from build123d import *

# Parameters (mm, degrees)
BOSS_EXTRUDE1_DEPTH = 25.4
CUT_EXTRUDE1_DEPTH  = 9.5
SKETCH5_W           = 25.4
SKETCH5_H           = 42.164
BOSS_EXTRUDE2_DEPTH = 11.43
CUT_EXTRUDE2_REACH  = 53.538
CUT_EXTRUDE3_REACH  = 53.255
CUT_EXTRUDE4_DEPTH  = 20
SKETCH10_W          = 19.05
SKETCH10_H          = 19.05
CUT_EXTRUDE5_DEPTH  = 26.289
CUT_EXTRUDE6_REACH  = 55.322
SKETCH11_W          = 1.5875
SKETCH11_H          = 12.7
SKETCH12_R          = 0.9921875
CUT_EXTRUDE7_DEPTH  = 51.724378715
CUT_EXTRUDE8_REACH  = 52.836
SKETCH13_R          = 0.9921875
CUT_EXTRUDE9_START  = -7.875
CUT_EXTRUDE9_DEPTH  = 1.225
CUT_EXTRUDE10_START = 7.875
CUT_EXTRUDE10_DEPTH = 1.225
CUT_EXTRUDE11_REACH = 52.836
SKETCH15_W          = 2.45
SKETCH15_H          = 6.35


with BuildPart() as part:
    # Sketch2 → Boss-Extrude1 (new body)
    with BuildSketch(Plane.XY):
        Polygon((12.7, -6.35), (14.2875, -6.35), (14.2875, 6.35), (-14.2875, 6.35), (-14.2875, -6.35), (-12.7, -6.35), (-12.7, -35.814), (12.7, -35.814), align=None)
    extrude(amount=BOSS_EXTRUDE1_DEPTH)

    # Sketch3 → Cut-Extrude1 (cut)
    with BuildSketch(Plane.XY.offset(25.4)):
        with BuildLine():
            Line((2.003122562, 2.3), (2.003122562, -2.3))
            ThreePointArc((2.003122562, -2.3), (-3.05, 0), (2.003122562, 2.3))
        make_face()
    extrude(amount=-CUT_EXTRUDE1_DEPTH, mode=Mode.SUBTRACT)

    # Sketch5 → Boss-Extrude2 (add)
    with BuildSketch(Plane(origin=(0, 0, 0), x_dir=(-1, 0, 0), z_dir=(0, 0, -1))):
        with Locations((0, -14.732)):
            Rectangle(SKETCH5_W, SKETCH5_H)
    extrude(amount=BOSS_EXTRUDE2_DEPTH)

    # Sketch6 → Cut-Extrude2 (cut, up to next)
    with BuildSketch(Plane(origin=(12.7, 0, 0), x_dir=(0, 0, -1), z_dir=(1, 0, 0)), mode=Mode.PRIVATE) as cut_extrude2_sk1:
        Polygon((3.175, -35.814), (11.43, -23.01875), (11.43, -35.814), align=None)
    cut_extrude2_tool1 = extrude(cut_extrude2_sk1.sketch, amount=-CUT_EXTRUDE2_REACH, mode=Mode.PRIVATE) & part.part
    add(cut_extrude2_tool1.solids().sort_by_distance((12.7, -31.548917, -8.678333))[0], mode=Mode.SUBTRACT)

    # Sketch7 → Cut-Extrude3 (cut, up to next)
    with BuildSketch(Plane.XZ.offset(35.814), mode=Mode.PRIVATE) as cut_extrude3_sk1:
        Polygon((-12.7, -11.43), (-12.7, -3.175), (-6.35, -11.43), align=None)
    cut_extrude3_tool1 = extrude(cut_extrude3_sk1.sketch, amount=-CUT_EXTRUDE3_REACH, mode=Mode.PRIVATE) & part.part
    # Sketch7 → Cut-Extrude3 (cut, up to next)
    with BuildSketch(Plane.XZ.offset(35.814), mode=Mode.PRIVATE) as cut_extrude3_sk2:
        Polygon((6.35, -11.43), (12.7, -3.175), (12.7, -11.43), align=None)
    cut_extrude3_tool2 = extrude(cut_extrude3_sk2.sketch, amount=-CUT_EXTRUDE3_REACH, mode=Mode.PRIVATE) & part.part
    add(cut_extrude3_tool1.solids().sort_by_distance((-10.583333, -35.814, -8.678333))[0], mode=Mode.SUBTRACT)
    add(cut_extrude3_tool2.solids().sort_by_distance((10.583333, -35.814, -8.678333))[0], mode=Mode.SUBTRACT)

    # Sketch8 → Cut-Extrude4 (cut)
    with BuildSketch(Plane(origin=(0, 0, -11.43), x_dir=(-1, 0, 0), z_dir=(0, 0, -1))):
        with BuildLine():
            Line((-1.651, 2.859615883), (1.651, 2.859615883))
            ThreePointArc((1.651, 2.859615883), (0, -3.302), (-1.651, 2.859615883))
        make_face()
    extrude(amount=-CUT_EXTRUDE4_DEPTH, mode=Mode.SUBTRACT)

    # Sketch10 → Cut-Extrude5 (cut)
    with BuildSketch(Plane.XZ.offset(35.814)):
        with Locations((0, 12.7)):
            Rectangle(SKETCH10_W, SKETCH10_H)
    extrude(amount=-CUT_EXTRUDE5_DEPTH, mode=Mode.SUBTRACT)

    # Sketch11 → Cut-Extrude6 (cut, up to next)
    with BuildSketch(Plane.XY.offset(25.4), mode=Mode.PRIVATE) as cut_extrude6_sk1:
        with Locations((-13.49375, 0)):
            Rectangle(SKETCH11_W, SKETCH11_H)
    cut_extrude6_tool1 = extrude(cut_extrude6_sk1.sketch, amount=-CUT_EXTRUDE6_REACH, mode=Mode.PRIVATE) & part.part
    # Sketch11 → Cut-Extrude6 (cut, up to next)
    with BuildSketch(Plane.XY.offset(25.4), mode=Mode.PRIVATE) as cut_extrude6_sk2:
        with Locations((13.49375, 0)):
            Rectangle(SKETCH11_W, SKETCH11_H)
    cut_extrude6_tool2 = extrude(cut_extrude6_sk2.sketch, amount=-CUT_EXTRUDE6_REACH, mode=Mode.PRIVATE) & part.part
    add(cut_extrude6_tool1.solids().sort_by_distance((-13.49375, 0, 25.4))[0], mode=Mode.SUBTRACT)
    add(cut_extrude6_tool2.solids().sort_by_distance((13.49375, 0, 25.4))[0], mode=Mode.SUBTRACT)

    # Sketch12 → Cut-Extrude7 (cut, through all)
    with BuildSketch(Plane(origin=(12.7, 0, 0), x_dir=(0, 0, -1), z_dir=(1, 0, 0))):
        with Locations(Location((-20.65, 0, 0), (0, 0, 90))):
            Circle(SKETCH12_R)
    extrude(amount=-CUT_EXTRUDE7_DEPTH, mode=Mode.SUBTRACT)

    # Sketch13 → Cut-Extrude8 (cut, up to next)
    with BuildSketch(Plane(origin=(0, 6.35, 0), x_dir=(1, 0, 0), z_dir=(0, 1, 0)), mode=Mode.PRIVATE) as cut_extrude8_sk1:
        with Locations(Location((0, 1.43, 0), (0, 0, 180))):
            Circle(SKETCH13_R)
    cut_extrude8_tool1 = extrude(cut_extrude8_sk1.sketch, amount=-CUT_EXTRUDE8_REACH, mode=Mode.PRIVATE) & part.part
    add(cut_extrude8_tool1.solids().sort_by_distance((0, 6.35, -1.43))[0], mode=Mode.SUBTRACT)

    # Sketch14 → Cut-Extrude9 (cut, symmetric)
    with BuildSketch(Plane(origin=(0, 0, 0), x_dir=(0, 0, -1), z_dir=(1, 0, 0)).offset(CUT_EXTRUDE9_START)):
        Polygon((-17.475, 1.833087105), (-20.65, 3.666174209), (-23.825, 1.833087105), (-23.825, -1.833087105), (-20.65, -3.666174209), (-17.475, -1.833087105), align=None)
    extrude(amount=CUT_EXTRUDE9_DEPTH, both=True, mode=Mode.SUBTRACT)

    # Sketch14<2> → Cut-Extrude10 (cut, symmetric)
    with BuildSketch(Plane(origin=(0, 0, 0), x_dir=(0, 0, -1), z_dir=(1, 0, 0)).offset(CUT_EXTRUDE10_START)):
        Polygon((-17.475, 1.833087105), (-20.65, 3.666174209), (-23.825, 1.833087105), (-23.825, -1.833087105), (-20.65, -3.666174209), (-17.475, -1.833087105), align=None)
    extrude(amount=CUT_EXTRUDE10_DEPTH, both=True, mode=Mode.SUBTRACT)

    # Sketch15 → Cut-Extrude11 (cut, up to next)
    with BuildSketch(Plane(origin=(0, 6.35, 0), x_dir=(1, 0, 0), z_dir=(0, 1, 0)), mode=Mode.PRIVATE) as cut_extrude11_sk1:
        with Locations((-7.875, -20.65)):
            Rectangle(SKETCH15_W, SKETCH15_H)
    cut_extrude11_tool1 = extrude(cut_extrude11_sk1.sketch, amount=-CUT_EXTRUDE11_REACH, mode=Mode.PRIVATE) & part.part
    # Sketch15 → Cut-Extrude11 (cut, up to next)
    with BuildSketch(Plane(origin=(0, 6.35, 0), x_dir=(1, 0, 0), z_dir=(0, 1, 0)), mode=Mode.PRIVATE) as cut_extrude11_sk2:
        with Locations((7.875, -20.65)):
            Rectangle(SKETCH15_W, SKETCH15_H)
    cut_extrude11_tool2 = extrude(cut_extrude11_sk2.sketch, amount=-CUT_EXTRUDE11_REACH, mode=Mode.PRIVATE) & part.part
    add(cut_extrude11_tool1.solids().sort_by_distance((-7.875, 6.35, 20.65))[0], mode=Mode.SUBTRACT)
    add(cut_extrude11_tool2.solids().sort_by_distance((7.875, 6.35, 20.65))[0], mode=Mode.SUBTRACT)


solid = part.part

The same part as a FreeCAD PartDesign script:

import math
import FreeCAD as App
import Part
import Sketcher

V = App.Vector
Q = App.Units.Quantity


def add_polygon(sketch, points):
    """Adds a closed chain of lines whose ends are joined by coincident constraints."""
    first, n = sketch.GeometryCount, len(points)
    for a, b in zip(points, points[1:] + points[:1]):
        sketch.addGeometry(Part.LineSegment(App.Vector(*a, 0), App.Vector(*b, 0)), False)
    for i in range(n):
        sketch.addConstraint(Sketcher.Constraint("Coincident", first + i, 2, first + (i + 1) % n, 1))

doc = App.newDocument("Part")
body = doc.addObject("PartDesign::Body", "Body")

sketch1 = doc.addObject("Sketcher::SketchObject", "Sketch")
body.addObject(sketch1)
sketch1.AttachmentSupport = (doc.XY_Plane, [""])
sketch1.MapMode = "FlatFace"
add_polygon(sketch1, [(12.7, -6.35), (14.2875, -6.35), (14.2875, 6.35), (-14.2875, 6.35), (-14.2875, -6.35), (-12.7, -6.35), (-12.7, -35.814), (12.7, -35.814)])
sketch1.addConstraint([
    Sketcher.Constraint("Horizontal", 0),
    Sketcher.Constraint("Vertical", 1),
    Sketcher.Constraint("Horizontal", 2),
    Sketcher.Constraint("Vertical", 3),
    Sketcher.Constraint("Horizontal", 4),
    Sketcher.Constraint("Vertical", 5),
    Sketcher.Constraint("Horizontal", 6),
    Sketcher.Constraint("Vertical", 7),
    Sketcher.Constraint("Symmetric", 0, 2, 2, 2, -1, 1),
    Sketcher.Constraint("Symmetric", 4, 2, 7, 2, -2),
    Sketcher.Constraint("DistanceX", 6, 1, 6, 2, Q("1 in")),
    Sketcher.Constraint("DistanceY", 1, 1, 1, 2, Q("0.5 in")),
    Sketcher.Constraint("DistanceY", 5, 2, 5, 1, Q("1.16 in")),
    Sketcher.Constraint("DistanceX", 0, 1, 0, 2, Q("0.0625 in")),
])
pad1 = doc.addObject("PartDesign::Pad", "Pad")
body.addObject(pad1)
pad1.Profile = sketch1
pad1.Length = Q("1 in")

sketch2 = doc.addObject("Sketcher::SketchObject", "Sketch001")
body.addObject(sketch2)
sketch2.AttachmentSupport = (doc.XY_Plane, [""])
sketch2.MapMode = "FlatFace"
sketch2.AttachmentOffset = App.Placement(V(0, 0, 1 * 25.4), App.Rotation())
sketch2.addGeometry([
    Part.LineSegment(V(2.003123, -2.3, 0), V(2.003123, 2.3, 0)),
    Part.ArcOfCircle(Part.Circle(V(0, 0, 0), V(0, 0, 1), 3.05), math.radians(48.946649), math.radians(311.053351)),
], False)
sketch2.addConstraint([
    Sketcher.Constraint("Coincident", 0, 1, 1, 2),
    Sketcher.Constraint("Coincident", 1, 1, 0, 2),
    Sketcher.Constraint("Vertical", 0),
    Sketcher.Constraint("Coincident", 1, 3, -1, 1),
    Sketcher.Constraint("Radius", 1, Q("3.05 mm")),
    Sketcher.Constraint("DistanceY", 0, 1, 0, 2, Q("4.6 mm")),
])
pocket1 = doc.addObject("PartDesign::Pocket", "Pocket")
body.addObject(pocket1)
pocket1.Profile = sketch2
pocket1.Length = 9.5

sketch3 = doc.addObject("Sketcher::SketchObject", "Sketch002")
body.addObject(sketch3)
sketch3.AttachmentSupport = (doc.XY_Plane, [""])
sketch3.MapMode = "FlatFace"
add_polygon(sketch3, [(12.7, 6.35), (12.7, -35.814), (-12.7, -35.814), (-12.7, 6.35)])
sketch3.addConstraint([
    Sketcher.Constraint("Vertical", 0),
    Sketcher.Constraint("Horizontal", 1),
    Sketcher.Constraint("Vertical", 2),
    Sketcher.Constraint("Horizontal", 3),
    Sketcher.Constraint("DistanceX", 1, 2, 1, 1, Q("1 in")),
    Sketcher.Constraint("DistanceY", 0, 2, 0, 1, Q("1.66 in")),
    Sketcher.Constraint("DistanceX", -1, 1, 0, 2, Q("0.5 in")),
    Sketcher.Constraint("DistanceY", 0, 2, -1, 1, Q("1.41 in")),
])
pad2 = doc.addObject("PartDesign::Pad", "Pad001")
body.addObject(pad2)
pad2.Profile = sketch3
pad2.Length = Q("0.45 in")
pad2.Reversed = True

sketch4 = doc.addObject("Sketcher::SketchObject", "Sketch003")
body.addObject(sketch4)
sketch4.AttachmentSupport = (doc.YZ_Plane, [""])
sketch4.MapMode = "FlatFace"
sketch4.AttachmentOffset = App.Placement(V(0, 0, 0.5 * 25.4), App.Rotation())
add_polygon(sketch4, [(-23.01875, -11.43), (-35.814, -3.175), (-35.814, -11.43)])
sketch4.addConstraint([
    Sketcher.Constraint("Vertical", 1),
    Sketcher.Constraint("Horizontal", 2),
    Sketcher.Constraint("DistanceY", 1, 2, 1, 1, Q("0.325 in")),
    Sketcher.Constraint("DistanceX", 0, 2, -1, 1, Q("1.41 in")),
    Sketcher.Constraint("DistanceY", 1, 2, -1, 1, Q("0.45 in")),
    Sketcher.Constraint("DistanceX", 2, 2, -1, 1, Q("0.90625 in")),
])
pocket2 = doc.addObject("PartDesign::Pocket", "Pocket001")
body.addObject(pocket2)
pocket2.Profile = sketch4
pocket2.Type = "UpToFirst"

sketch5 = doc.addObject("Sketcher::SketchObject", "Sketch004")
body.addObject(sketch5)
sketch5.AttachmentSupport = (doc.XZ_Plane, [""])
sketch5.MapMode = "FlatFace"
sketch5.AttachmentOffset = App.Placement(V(0, 0, 1.41 * 25.4), App.Rotation())
add_polygon(sketch5, [(-12.7, -3.175), (-12.7, -11.43), (-6.35, -11.43)])
sketch5.addConstraint([
    Sketcher.Constraint("Vertical", 0),
    Sketcher.Constraint("Horizontal", 1),
    Sketcher.Constraint("DistanceX", 1, 1, 1, 2, Q("0.25 in")),
    Sketcher.Constraint("DistanceX", 0, 2, -1, 1, Q("0.5 in")),
    Sketcher.Constraint("DistanceY", 0, 2, 0, 1, Q("0.325 in")),
    Sketcher.Constraint("DistanceY", 0, 2, -1, 1, Q("0.45 in")),
])
pocket3 = doc.addObject("PartDesign::Pocket", "Pocket002")
body.addObject(pocket3)
pocket3.Profile = sketch5
pocket3.Length = Q("1.66 in")

sketch6 = doc.addObject("Sketcher::SketchObject", "Sketch005")
body.addObject(sketch6)
sketch6.AttachmentSupport = (doc.XZ_Plane, [""])
sketch6.MapMode = "FlatFace"
sketch6.AttachmentOffset = App.Placement(V(0, 0, 1.41 * 25.4), App.Rotation())
add_polygon(sketch6, [(12.7, -3.175), (6.35, -11.43), (12.7, -11.43)])
sketch6.addConstraint([
    Sketcher.Constraint("Horizontal", 1),
    Sketcher.Constraint("Vertical", 2),
    Sketcher.Constraint("DistanceX", 1, 1, 1, 2, Q("0.25 in")),
    Sketcher.Constraint("DistanceX", -1, 1, 1, 2, Q("0.5 in")),
    Sketcher.Constraint("DistanceY", 2, 1, 2, 2, Q("0.325 in")),
    Sketcher.Constraint("DistanceY", 0, 2, -1, 1, Q("0.45 in")),
])
pocket4 = doc.addObject("PartDesign::Pocket", "Pocket003")
body.addObject(pocket4)
pocket4.Profile = sketch6
pocket4.Length = Q("1.66 in")

sketch7 = doc.addObject("Sketcher::SketchObject", "Sketch006")
body.addObject(sketch7)
sketch7.AttachmentSupport = (doc.XY_Plane, [""])
sketch7.MapMode = "FlatFace"
sketch7.AttachmentOffset = App.Placement(V(0, 0, -0.45 * 25.4), App.Rotation())
sketch7.addGeometry([
    Part.LineSegment(V(-1.651, 2.859616, 0), V(1.651, 2.859616, 0)),
    Part.ArcOfCircle(Part.Circle(V(0, 0, 0), V(0, 0, 1), 3.302), math.radians(120), math.radians(420)),
], False)
sketch7.addConstraint([
    Sketcher.Constraint("Coincident", 0, 1, 1, 1),
    Sketcher.Constraint("Coincident", 1, 2, 0, 2),
    Sketcher.Constraint("Horizontal", 0),
    Sketcher.Constraint("Coincident", 1, 3, -1, 1),
    Sketcher.Constraint("Radius", 1, Q("0.13 in")),
    Sketcher.Constraint("DistanceX", 0, 1, 0, 2, Q("0.13 in")),
])
pocket5 = doc.addObject("PartDesign::Pocket", "Pocket004")
body.addObject(pocket5)
pocket5.Profile = sketch7
pocket5.Length = 20
pocket5.Reversed = True

sketch8 = doc.addObject("Sketcher::SketchObject", "Sketch007")
body.addObject(sketch8)
sketch8.AttachmentSupport = (doc.XZ_Plane, [""])
sketch8.MapMode = "FlatFace"
sketch8.AttachmentOffset = App.Placement(V(0, 0, 1.41 * 25.4), App.Rotation())
add_polygon(sketch8, [(-9.525, 22.225), (-9.525, 3.175), (9.525, 3.175), (9.525, 22.225)])
sketch8.addConstraint([
    Sketcher.Constraint("Vertical", 0),
    Sketcher.Constraint("Horizontal", 1),
    Sketcher.Constraint("Vertical", 2),
    Sketcher.Constraint("Horizontal", 3),
    Sketcher.Constraint("Equal", 3, 0),
    Sketcher.Constraint("DistanceX", 1, 1, 1, 2, Q("0.75 in")),
    Sketcher.Constraint("DistanceX", 0, 2, -1, 1, Q("0.375 in")),
    Sketcher.Constraint("DistanceY", -1, 1, 0, 2, Q("0.125 in")),
])
pocket6 = doc.addObject("PartDesign::Pocket", "Pocket005")
body.addObject(pocket6)
pocket6.Profile = sketch8
pocket6.Length = Q("1.035 in")

sketch9 = doc.addObject("Sketcher::SketchObject", "Sketch008")
body.addObject(sketch9)
sketch9.AttachmentSupport = (doc.XY_Plane, [""])
sketch9.MapMode = "FlatFace"
sketch9.AttachmentOffset = App.Placement(V(0, 0, 1 * 25.4), App.Rotation())
add_polygon(sketch9, [(-14.2875, 6.35), (-14.2875, -6.35), (-12.7, -6.35), (-12.7, 6.35)])
sketch9.addConstraint([
    Sketcher.Constraint("Vertical", 0),
    Sketcher.Constraint("Horizontal", 1),
    Sketcher.Constraint("Vertical", 2),
    Sketcher.Constraint("Horizontal", 3),
    Sketcher.Constraint("DistanceY", 0, 2, 0, 1, Q("0.5 in")),
    Sketcher.Constraint("DistanceX", 1, 2, -1, 1, Q("0.5 in")),
    Sketcher.Constraint("DistanceX", 1, 1, 1, 2, Q("0.0625 in")),
    Sketcher.Constraint("DistanceY", 0, 2, -1, 1, Q("0.25 in")),
])
pocket7 = doc.addObject("PartDesign::Pocket", "Pocket006")
body.addObject(pocket7)
pocket7.Profile = sketch9
pocket7.Type = "UpToFirst"

sketch10 = doc.addObject("Sketcher::SketchObject", "Sketch009")
body.addObject(sketch10)
sketch10.AttachmentSupport = (doc.XY_Plane, [""])
sketch10.MapMode = "FlatFace"
sketch10.AttachmentOffset = App.Placement(V(0, 0, 1 * 25.4), App.Rotation())
add_polygon(sketch10, [(12.7, 6.35), (12.7, -6.35), (14.2875, -6.35), (14.2875, 6.35)])
sketch10.addConstraint([
    Sketcher.Constraint("Vertical", 0),
    Sketcher.Constraint("Horizontal", 1),
    Sketcher.Constraint("Vertical", 2),
    Sketcher.Constraint("Horizontal", 3),
    Sketcher.Constraint("DistanceY", 0, 2, 0, 1, Q("0.5 in")),
    Sketcher.Constraint("DistanceX", -1, 1, 0, 2, Q("0.5 in")),
    Sketcher.Constraint("DistanceX", 1, 1, 1, 2, Q("0.0625 in")),
    Sketcher.Constraint("DistanceY", 0, 2, -1, 1, Q("0.25 in")),
])
pocket8 = doc.addObject("PartDesign::Pocket", "Pocket007")
body.addObject(pocket8)
pocket8.Profile = sketch10
pocket8.Type = "UpToFirst"

sketch11 = doc.addObject("Sketcher::SketchObject", "Sketch010")
body.addObject(sketch11)
sketch11.AttachmentSupport = (doc.YZ_Plane, [""])
sketch11.MapMode = "FlatFace"
sketch11.AttachmentOffset = App.Placement(V(0, 0, 0.5 * 25.4), App.Rotation())
sketch11.addGeometry(Part.Circle(V(0, 20.65, 0), V(0, 0, 1), 0.992188), False)
sketch11.addConstraint([
    Sketcher.Constraint("PointOnObject", 0, 3, -2),
    Sketcher.Constraint("Diameter", 0, Q("0.078125 in")),
    Sketcher.Constraint("DistanceY", -1, 1, 0, 3, Q("20.65 mm")),
])
pocket9 = doc.addObject("PartDesign::Pocket", "Pocket008")
body.addObject(pocket9)
pocket9.Profile = sketch11
pocket9.Type = "ThroughAll"

sketch12 = doc.addObject("Sketcher::SketchObject", "Sketch011")
body.addObject(sketch12)
sketch12.AttachmentSupport = (doc.XZ_Plane, [""])
sketch12.MapMode = "FlatFace"
sketch12.AttachmentOffset = App.Placement(V(0, 0, -0.25 * 25.4), App.Rotation())
sketch12.addGeometry(Part.Circle(V(0, -1.43, 0), V(0, 0, 1), 0.992188), False)
sketch12.addConstraint([
    Sketcher.Constraint("PointOnObject", 0, 3, -2),
    Sketcher.Constraint("Diameter", 0, Q("0.078125 in")),
    Sketcher.Constraint("DistanceY", 0, 3, -1, 1, Q("1.43 mm")),
])
pocket10 = doc.addObject("PartDesign::Pocket", "Pocket009")
body.addObject(pocket10)
pocket10.Profile = sketch12
pocket10.Type = "UpToFirst"
pocket10.Reversed = True

sketch13 = doc.addObject("Sketcher::SketchObject", "Sketch012")
body.addObject(sketch13)
sketch13.AttachmentSupport = (doc.YZ_Plane, [""])
sketch13.MapMode = "FlatFace"
sketch13.AttachmentOffset = App.Placement(V(0, 0, -7.875), App.Rotation())
add_polygon(sketch13, [(1.833087, 17.475), (3.666174, 20.65), (1.833087, 23.825), (-1.833087, 23.825), (-3.666174, 20.65), (-1.833087, 17.475)])
sketch13.addConstraint([
    Sketcher.Constraint("Horizontal", 2),
    Sketcher.Constraint("Horizontal", 5),
    Sketcher.Constraint("Symmetric", 0, 2, 3, 2, -2),
    Sketcher.Constraint("Parallel", 0, 3),
    Sketcher.Constraint("Parallel", 1, 4),
    Sketcher.Constraint("Vertical", 2, 2, 4, 2),
    Sketcher.Constraint("Vertical", 1, 2, 5, 2),
    Sketcher.Constraint("Angle", 0, Q("60 deg")),
    Sketcher.Constraint("DistanceY", 4, 2, 2, 2, Q("0.25 in")),
    Sketcher.Constraint("DistanceY", -1, 1, 0, 2, Q("20.65 mm")),
    Sketcher.Constraint("DistanceX", 2, 2, 2, 1, Q("3.666174 mm")),
])
pocket11 = doc.addObject("PartDesign::Pocket", "Pocket010")
body.addObject(pocket11)
pocket11.Profile = sketch13
pocket11.Length = 2.45
pocket11.Midplane = True

sketch14 = doc.addObject("Sketcher::SketchObject", "Sketch013")
body.addObject(sketch14)
sketch14.AttachmentSupport = (doc.YZ_Plane, [""])
sketch14.MapMode = "FlatFace"
sketch14.AttachmentOffset = App.Placement(V(0, 0, 7.875), App.Rotation())
add_polygon(sketch14, [(1.833087, 17.475), (3.666174, 20.65), (1.833087, 23.825), (-1.833087, 23.825), (-3.666174, 20.65), (-1.833087, 17.475)])
sketch14.addConstraint([
    Sketcher.Constraint("Horizontal", 2),
    Sketcher.Constraint("Horizontal", 5),
    Sketcher.Constraint("Symmetric", 0, 2, 3, 2, -2),
    Sketcher.Constraint("Parallel", 0, 3),
    Sketcher.Constraint("Parallel", 1, 4),
    Sketcher.Constraint("Vertical", 2, 2, 4, 2),
    Sketcher.Constraint("Vertical", 1, 2, 5, 2),
    Sketcher.Constraint("Angle", 0, Q("60 deg")),
    Sketcher.Constraint("DistanceY", 4, 2, 2, 2, Q("0.25 in")),
    Sketcher.Constraint("DistanceY", -1, 1, 0, 2, Q("20.65 mm")),
    Sketcher.Constraint("DistanceX", 2, 2, 2, 1, Q("3.666174 mm")),
])
pocket12 = doc.addObject("PartDesign::Pocket", "Pocket011")
body.addObject(pocket12)
pocket12.Profile = sketch14
pocket12.Length = 2.45
pocket12.Midplane = True

sketch15 = doc.addObject("Sketcher::SketchObject", "Sketch014")
body.addObject(sketch15)
sketch15.AttachmentSupport = (doc.XZ_Plane, [""])
sketch15.MapMode = "FlatFace"
sketch15.AttachmentOffset = App.Placement(V(0, 0, -0.25 * 25.4), App.Rotation())
add_polygon(sketch15, [(-9.1, 17.475), (-9.1, 23.825), (-6.65, 23.825), (-6.65, 17.475)])
sketch15.addConstraint([
    Sketcher.Constraint("Vertical", 0),
    Sketcher.Constraint("Horizontal", 1),
    Sketcher.Constraint("Vertical", 2),
    Sketcher.Constraint("Horizontal", 3),
    Sketcher.Constraint("DistanceY", 0, 1, 0, 2, Q("0.25 in")),
    Sketcher.Constraint("DistanceX", 1, 1, 1, 2, Q("2.45 mm")),
    Sketcher.Constraint("DistanceX", 0, 2, -1, 1, Q("9.1 mm")),
    Sketcher.Constraint("DistanceY", -1, 1, 0, 2, Q("23.825 mm")),
])
pocket13 = doc.addObject("PartDesign::Pocket", "Pocket012")
body.addObject(pocket13)
pocket13.Profile = sketch15
pocket13.Length = 4.516913
pocket13.Reversed = True

sketch16 = doc.addObject("Sketcher::SketchObject", "Sketch015")
body.addObject(sketch16)
sketch16.AttachmentSupport = (doc.XZ_Plane, [""])
sketch16.MapMode = "FlatFace"
sketch16.AttachmentOffset = App.Placement(V(0, 0, -0.25 * 25.4), App.Rotation())
add_polygon(sketch16, [(6.65, 17.475), (6.65, 23.825), (9.1, 23.825), (9.1, 17.475)])
sketch16.addConstraint([
    Sketcher.Constraint("Vertical", 0),
    Sketcher.Constraint("Horizontal", 1),
    Sketcher.Constraint("Vertical", 2),
    Sketcher.Constraint("Horizontal", 3),
    Sketcher.Constraint("DistanceY", 0, 1, 0, 2, Q("0.25 in")),
    Sketcher.Constraint("DistanceX", 1, 1, 1, 2, Q("2.45 mm")),
    Sketcher.Constraint("DistanceX", -1, 1, 0, 2, Q("6.65 mm")),
    Sketcher.Constraint("DistanceY", -1, 1, 0, 2, Q("23.825 mm")),
])
pocket14 = doc.addObject("PartDesign::Pocket", "Pocket013")
body.addObject(pocket14)
pocket14.Profile = sketch16
pocket14.Length = 4.516913
pocket14.Reversed = True

doc.recompute()
